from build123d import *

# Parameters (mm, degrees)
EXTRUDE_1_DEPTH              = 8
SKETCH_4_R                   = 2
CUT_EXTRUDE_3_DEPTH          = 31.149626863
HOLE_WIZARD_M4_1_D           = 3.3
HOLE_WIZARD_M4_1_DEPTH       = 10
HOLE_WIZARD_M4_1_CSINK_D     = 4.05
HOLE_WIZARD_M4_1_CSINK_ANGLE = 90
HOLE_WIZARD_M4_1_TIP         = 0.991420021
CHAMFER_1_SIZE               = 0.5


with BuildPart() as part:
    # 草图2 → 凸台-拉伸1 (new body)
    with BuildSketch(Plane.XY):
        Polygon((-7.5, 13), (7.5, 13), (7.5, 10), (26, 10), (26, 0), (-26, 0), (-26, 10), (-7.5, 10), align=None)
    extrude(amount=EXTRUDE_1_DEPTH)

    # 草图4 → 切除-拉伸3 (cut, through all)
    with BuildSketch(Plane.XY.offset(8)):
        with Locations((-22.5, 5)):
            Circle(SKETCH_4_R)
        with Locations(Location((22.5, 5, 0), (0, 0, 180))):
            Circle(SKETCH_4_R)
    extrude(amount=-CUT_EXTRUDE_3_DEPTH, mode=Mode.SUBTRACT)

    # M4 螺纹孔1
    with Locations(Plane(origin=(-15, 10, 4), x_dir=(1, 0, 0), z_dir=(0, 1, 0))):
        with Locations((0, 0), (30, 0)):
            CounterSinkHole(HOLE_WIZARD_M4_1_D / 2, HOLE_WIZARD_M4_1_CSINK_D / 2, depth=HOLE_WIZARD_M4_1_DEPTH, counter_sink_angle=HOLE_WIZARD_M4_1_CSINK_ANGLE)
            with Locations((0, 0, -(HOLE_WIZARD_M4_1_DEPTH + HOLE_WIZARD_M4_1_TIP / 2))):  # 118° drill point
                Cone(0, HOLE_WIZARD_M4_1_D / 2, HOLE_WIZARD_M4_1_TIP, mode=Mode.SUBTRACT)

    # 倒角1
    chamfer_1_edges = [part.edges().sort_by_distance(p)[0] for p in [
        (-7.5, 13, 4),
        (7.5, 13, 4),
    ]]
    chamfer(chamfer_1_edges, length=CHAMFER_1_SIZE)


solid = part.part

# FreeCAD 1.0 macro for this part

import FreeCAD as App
import Part
import Sketcher

V = App.Vector
Q = App.Units.Quantity


def edges_at(feature, points):
    """Names of the edges that pass closest to the given points."""
    edges = feature.Shape.Edges
    near = lambda p: min(range(len(edges)), key=lambda i: edges[i].distToShape(Part.Vertex(*p))[0])
    return sorted({f"Edge{near(p) + 1}" for p in points})


def add_polygon(sketch, points):
    """Adds a closed chain of lines whose ends are joined by coincident constraints."""
    first, n = sketch.GeometryCount, len(points)
    for a, b in zip(points, points[1:] + points[:1]):
        sketch.addGeometry(Part.LineSegment(App.Vector(*a, 0), App.Vector(*b, 0)), False)
    for i in range(n):
        sketch.addConstraint(Sketcher.Constraint("Coincident", first + i, 2, first + (i + 1) % n, 1))

doc = App.newDocument("Part")
body = doc.addObject("PartDesign::Body", "Body")

# Sketch on XY plane
sketch1 = doc.addObject("Sketcher::SketchObject", "Sketch")
body.addObject(sketch1)
sketch1.AttachmentSupport = (doc.XY_Plane, [""])
sketch1.MapMode = "FlatFace"
add_polygon(sketch1, [(7.5, 13), (-7.5, 13), (-7.5, 10), (-26, 10), (-26, 0), (26, 0), (26, 10), (7.5, 10)])  # lines 0-7
sketch1.addConstraint([
    Sketcher.Constraint("Horizontal", 0),
    Sketcher.Constraint("Vertical", 1),
    Sketcher.Constraint("Horizontal", 2),
    Sketcher.Constraint("Vertical", 3),
    Sketcher.Constraint("Horizontal", 4),
    Sketcher.Constraint("Vertical", 5),
    Sketcher.Constraint("Horizontal", 6),
    Sketcher.Constraint("Vertical", 7),
    Sketcher.Constraint("Symmetric", 3, 2, 4, 2, -1, 1),
    Sketcher.Constraint("Symmetric", 1, 2, 6, 2, -2),
    Sketcher.Constraint("DistanceX", 0, 2, 0, 1, Q("15 mm")),
    Sketcher.Constraint("DistanceX", 4, 1, 4, 2, Q("52 mm")),
    Sketcher.Constraint("DistanceY", 1, 2, 1, 1, Q("3 mm")),
    Sketcher.Constraint("DistanceY", 3, 2, 3, 1, Q("10 mm")),
])
pad1 = doc.addObject("PartDesign::Pad", "Pad")
body.addObject(pad1)
pad1.Profile = sketch1
pad1.Length = 8

# Sketch on XY plane
sketch2 = doc.addObject("Sketcher::SketchObject", "Sketch001")
body.addObject(sketch2)
sketch2.AttachmentSupport = (doc.XY_Plane, [""])
sketch2.MapMode = "FlatFace"
sketch2.AttachmentOffset = App.Placement(V(0, 0, 8), App.Rotation())
sketch2.addGeometry([
    Part.Circle(V(-22.5, 5, 0), V(0, 0, 1), 2),
    Part.Circle(V(22.5, 5, 0), V(0, 0, 1), 2),
], False)
sketch2.addConstraint([
    Sketcher.Constraint("Equal", 0, 1),
    Sketcher.Constraint("Symmetric", 0, 3, 1, 3, -2),
    Sketcher.Constraint("Diameter", 0, Q("4 mm")),
    Sketcher.Constraint("DistanceY", -1, 1, 0, 3, Q("5 mm")),
    Sketcher.Constraint("DistanceX", 0, 3, 1, 3, Q("45 mm")),
])
pocket1 = doc.addObject("PartDesign::Pocket", "Pocket")
body.addObject(pocket1)
pocket1.Profile = sketch2
pocket1.Type = "ThroughAll"

# Sketch on XZ plane
sketch3 = doc.addObject("Sketcher::SketchObject", "Sketch002")
body.addObject(sketch3)
sketch3.AttachmentSupport = (doc.XZ_Plane, [""])
sketch3.MapMode = "FlatFace"
sketch3.AttachmentOffset = App.Placement(V(0, 0, -10), App.Rotation())
sketch3.addGeometry([
    Part.Circle(V(-15, 4, 0), V(0, 0, 1), 1.6),
    Part.Circle(V(15, 4, 0), V(0, 0, 1), 1.6),
], False)
sketch3.addConstraint([
    Sketcher.Constraint("Equal", 0, 1),
    Sketcher.Constraint("Symmetric", 0, 3, 1, 3, -2),
    Sketcher.Constraint("Diameter", 0, Q("3.3 mm")),
    Sketcher.Constraint("DistanceX", 0, 3, -1, 1, Q("15 mm")),
    Sketcher.Constraint("DistanceY", -1, 1, 0, 3, Q("4 mm")),
])
doc.recompute()
hole = doc.addObject("PartDesign::Hole", "Hole")
body.addObject(hole)
hole.Profile = sketch3
hole.ThreadType = "None"
hole.Diameter = 3.3
hole.DepthType = "Dimension"
hole.Depth = 10
hole.DrillPoint = "Angled"
hole.DrillPointAngle = 118
hole.HoleCutType = "Countersink"
hole.HoleCutDiameter = 4.05
hole.HoleCutCountersinkAngle = 90
hole.Reversed = True
doc.recompute()

chamfer = doc.addObject("PartDesign::Chamfer", "Chamfer")
body.addObject(chamfer)
chamfer.Base = (hole, edges_at(hole, [(-7.5, 13, 4), (7.5, 13, 4)]))
chamfer.Size = 0.5

doc.recompute()
